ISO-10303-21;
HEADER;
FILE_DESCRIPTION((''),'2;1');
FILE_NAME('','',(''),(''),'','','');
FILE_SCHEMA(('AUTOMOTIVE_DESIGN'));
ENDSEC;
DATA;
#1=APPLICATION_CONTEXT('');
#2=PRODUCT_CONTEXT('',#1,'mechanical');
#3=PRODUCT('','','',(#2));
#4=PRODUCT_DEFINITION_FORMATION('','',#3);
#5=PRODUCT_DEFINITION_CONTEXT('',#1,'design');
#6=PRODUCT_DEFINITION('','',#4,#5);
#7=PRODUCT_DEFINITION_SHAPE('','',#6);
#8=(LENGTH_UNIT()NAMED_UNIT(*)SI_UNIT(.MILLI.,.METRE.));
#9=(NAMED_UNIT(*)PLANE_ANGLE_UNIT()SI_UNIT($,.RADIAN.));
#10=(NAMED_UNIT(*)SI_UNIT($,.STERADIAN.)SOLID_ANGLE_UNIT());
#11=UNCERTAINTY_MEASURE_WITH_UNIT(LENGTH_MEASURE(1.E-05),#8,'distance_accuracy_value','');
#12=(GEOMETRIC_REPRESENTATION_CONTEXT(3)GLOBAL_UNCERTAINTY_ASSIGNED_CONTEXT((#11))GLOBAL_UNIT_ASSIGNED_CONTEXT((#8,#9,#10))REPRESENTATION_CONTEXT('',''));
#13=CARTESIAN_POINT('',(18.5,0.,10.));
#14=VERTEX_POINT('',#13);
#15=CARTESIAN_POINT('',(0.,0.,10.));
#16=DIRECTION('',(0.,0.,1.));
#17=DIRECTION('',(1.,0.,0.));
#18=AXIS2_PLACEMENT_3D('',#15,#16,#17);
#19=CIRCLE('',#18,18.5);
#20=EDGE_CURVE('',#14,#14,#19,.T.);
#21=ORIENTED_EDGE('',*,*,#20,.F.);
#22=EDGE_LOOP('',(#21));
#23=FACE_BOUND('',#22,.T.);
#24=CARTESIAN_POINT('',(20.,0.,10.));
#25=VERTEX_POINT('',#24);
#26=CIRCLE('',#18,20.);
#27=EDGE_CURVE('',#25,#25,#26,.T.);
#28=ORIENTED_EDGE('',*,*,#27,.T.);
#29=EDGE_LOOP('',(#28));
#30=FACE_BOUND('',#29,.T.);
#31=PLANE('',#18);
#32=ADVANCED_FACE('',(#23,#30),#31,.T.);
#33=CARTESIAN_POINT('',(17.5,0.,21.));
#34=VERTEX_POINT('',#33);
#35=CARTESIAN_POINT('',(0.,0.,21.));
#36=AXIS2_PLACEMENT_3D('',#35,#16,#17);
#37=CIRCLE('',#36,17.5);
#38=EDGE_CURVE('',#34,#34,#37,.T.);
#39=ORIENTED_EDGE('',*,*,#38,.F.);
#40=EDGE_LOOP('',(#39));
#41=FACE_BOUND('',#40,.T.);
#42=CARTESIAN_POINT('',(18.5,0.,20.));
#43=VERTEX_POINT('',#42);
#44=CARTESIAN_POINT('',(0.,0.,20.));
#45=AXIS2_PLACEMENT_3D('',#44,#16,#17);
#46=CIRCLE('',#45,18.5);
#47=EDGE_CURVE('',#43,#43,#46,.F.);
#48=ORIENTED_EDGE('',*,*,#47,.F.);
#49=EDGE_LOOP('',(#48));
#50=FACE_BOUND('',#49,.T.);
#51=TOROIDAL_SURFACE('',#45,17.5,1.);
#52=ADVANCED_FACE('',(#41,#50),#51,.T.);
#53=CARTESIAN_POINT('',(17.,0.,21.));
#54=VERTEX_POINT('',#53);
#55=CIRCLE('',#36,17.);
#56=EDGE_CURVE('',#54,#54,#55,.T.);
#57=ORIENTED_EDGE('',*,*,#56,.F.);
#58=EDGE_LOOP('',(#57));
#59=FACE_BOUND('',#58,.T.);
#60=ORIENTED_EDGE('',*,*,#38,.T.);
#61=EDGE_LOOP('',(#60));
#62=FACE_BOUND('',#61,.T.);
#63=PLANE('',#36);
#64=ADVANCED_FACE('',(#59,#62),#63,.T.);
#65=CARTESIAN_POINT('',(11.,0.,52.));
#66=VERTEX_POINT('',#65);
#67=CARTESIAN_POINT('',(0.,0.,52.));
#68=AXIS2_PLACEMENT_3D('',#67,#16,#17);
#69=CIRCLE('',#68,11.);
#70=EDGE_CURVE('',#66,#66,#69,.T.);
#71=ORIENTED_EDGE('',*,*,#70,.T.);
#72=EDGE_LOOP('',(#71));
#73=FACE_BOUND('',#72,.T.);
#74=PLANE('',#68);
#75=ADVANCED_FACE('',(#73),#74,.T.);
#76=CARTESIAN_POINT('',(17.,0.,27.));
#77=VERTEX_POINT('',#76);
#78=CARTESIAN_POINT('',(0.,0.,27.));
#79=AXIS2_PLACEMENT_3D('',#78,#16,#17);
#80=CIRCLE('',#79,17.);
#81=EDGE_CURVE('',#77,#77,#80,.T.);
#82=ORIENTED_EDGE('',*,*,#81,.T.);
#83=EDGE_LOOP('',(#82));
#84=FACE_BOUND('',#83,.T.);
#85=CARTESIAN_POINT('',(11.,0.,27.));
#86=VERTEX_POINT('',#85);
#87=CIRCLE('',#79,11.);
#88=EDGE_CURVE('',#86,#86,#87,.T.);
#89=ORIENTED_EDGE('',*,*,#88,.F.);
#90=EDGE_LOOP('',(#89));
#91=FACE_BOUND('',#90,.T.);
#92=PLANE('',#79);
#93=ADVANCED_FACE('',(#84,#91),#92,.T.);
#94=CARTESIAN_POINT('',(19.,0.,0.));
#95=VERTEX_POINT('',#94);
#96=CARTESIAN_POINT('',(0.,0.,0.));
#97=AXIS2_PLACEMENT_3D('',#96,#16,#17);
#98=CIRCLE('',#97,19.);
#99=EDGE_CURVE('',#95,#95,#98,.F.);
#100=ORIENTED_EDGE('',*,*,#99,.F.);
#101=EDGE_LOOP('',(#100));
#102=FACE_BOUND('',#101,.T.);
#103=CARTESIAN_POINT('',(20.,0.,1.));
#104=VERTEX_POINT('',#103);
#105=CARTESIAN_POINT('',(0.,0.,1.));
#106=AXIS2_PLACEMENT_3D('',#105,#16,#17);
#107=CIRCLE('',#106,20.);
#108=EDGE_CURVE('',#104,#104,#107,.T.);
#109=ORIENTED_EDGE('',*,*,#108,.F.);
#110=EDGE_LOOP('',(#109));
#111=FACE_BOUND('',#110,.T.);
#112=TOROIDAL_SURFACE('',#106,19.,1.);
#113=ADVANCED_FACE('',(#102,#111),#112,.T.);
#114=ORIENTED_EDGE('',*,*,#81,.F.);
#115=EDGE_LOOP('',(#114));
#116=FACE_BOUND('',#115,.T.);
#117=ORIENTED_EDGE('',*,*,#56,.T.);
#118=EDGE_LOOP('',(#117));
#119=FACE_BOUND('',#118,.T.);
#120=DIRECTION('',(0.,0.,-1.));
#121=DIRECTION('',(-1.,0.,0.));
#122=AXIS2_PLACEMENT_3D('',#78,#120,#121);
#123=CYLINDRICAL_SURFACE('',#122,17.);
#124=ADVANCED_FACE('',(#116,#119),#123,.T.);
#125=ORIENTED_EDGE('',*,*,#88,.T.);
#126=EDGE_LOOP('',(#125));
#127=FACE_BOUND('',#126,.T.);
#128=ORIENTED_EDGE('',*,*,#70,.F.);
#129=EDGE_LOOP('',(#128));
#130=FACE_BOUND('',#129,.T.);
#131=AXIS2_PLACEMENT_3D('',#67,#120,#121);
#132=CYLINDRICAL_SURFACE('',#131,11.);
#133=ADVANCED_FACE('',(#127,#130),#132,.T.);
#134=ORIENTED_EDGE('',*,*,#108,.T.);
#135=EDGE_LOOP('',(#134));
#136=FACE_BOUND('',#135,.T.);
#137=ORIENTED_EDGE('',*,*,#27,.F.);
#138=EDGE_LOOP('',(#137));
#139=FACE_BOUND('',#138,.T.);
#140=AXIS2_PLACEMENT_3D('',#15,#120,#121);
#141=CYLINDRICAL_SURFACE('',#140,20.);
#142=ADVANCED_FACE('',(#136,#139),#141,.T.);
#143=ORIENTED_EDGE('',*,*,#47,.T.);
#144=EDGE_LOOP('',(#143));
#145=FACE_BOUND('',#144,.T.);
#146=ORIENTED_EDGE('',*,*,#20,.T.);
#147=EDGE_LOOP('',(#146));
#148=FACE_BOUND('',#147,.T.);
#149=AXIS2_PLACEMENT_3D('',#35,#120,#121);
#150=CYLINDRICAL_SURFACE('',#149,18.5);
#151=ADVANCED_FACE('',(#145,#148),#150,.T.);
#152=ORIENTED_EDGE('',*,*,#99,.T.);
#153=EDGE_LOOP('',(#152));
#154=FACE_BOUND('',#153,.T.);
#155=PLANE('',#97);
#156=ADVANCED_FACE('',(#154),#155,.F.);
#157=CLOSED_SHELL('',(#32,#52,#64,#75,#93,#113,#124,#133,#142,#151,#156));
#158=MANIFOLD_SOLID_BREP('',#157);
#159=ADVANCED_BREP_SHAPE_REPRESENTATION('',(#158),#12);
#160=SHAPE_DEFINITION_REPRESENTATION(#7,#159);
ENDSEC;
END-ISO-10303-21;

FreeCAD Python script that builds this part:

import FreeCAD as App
import Part
import Sketcher
from FreeCAD import Vector


def edges_at(feature, points):
    """Names of the edges that pass closest to the given points."""
    edges = feature.Shape.Edges
    near = lambda p: min(range(len(edges)), key=lambda i: edges[i].distToShape(Part.Vertex(*p))[0])
    return sorted({f"Edge{near(p) + 1}" for p in points})

doc = App.newDocument("Part")
params = doc.addObject("Spreadsheet::Sheet", "Params")
for row, (alias, value) in enumerate([
    ("sketch1_diameter", "40 mm"),
    ("pad1_length", "10 mm"),
    ("sketch2_diameter", "37 mm"),
    ("pad2_length", "11 mm"),
    ("sketch3_diameter", "34 mm"),
    ("pad3_length", "6 mm"),
    ("sketch4_diameter", "22 mm"),
    ("pad4_length", "25 mm"),
    ("fillet_radius", "1 mm"),
], start=1):
    params.set(f"A{row}", alias)
    params.set(f"B{row}", "=" + value)
    params.setAlias(f"B{row}", alias)

body = doc.addObject("PartDesign::Body", "Body")

sketch1 = doc.addObject("Sketcher::SketchObject", "Sketch")
body.addObject(sketch1)
sketch1.AttachmentSupport = (doc.XY_Plane, [""])
sketch1.MapMode = "FlatFace"
sketch1.addGeometry(Part.Circle(Vector(0, 0, 0), Vector(0, 0, 1), 20), False)
sketch1.addConstraint([
    Sketcher.Constraint("Coincident", 0, 3, -1, 1),
    Sketcher.Constraint("Diameter", 0, 40.0),
])
sketch1.setExpression("Constraints[1]", "Params.sketch1_diameter")
pad1 = doc.addObject("PartDesign::Pad", "Pad")
body.addObject(pad1)
pad1.Profile = sketch1
pad1.setExpression("Length", "Params.pad1_length")

sketch2 = doc.addObject("Sketcher::SketchObject", "Sketch001")
body.addObject(sketch2)
sketch2.AttachmentSupport = (doc.XY_Plane, [""])
sketch2.MapMode = "FlatFace"
sketch2.AttachmentOffset = App.Placement(Vector(0, 0, 10), App.Rotation())
sketch2.addGeometry(Part.Circle(Vector(0, 0, 0), Vector(0, 0, 1), 18.5), False)
sketch2.addConstraint([
    Sketcher.Constraint("Coincident", 0, 3, -1, 1),
    Sketcher.Constraint("Diameter", 0, 37.0),
])
sketch2.setExpression("Constraints[1]", "Params.sketch2_diameter")
pad2 = doc.addObject("PartDesign::Pad", "Pad001")
body.addObject(pad2)
pad2.Profile = sketch2
pad2.setExpression("Length", "Params.pad2_length")

sketch3 = doc.addObject("Sketcher::SketchObject", "Sketch002")
body.addObject(sketch3)
sketch3.AttachmentSupport = (doc.XY_Plane, [""])
sketch3.MapMode = "FlatFace"
sketch3.AttachmentOffset = App.Placement(Vector(0, 0, 21), App.Rotation())
sketch3.addGeometry(Part.Circle(Vector(0, 0, 0), Vector(0, 0, 1), 17), False)
sketch3.addConstraint([
    Sketcher.Constraint("Coincident", 0, 3, -1, 1),
    Sketcher.Constraint("Diameter", 0, 34.0),
])
sketch3.setExpression("Constraints[1]", "Params.sketch3_diameter")
pad3 = doc.addObject("PartDesign::Pad", "Pad002")
body.addObject(pad3)
pad3.Profile = sketch3
pad3.setExpression("Length", "Params.pad3_length")

sketch4 = doc.addObject("Sketcher::SketchObject", "Sketch003")
body.addObject(sketch4)
sketch4.AttachmentSupport = (doc.XY_Plane, [""])
sketch4.MapMode = "FlatFace"
sketch4.AttachmentOffset = App.Placement(Vector(0, 0, 27), App.Rotation())
sketch4.addGeometry(Part.Circle(Vector(0, 0, 0), Vector(0, 0, 1), 11), False)
sketch4.addConstraint([
    Sketcher.Constraint("Coincident", 0, 3, -1, 1),
    Sketcher.Constraint("Diameter", 0, 22.0),
])
sketch4.setExpression("Constraints[1]", "Params.sketch4_diameter")
pad4 = doc.addObject("PartDesign::Pad", "Pad003")
body.addObject(pad4)
pad4.Profile = sketch4
pad4.setExpression("Length", "Params.pad4_length")
doc.recompute()

fillet = doc.addObject("PartDesign::Fillet", "Fillet")
body.addObject(fillet)
fillet.Base = (pad4, edges_at(pad4, [(-20, 0, 0), (-18.5, 0, 21)]))
fillet.setExpression("Radius", "Params.fillet_radius")

doc.recompute()
